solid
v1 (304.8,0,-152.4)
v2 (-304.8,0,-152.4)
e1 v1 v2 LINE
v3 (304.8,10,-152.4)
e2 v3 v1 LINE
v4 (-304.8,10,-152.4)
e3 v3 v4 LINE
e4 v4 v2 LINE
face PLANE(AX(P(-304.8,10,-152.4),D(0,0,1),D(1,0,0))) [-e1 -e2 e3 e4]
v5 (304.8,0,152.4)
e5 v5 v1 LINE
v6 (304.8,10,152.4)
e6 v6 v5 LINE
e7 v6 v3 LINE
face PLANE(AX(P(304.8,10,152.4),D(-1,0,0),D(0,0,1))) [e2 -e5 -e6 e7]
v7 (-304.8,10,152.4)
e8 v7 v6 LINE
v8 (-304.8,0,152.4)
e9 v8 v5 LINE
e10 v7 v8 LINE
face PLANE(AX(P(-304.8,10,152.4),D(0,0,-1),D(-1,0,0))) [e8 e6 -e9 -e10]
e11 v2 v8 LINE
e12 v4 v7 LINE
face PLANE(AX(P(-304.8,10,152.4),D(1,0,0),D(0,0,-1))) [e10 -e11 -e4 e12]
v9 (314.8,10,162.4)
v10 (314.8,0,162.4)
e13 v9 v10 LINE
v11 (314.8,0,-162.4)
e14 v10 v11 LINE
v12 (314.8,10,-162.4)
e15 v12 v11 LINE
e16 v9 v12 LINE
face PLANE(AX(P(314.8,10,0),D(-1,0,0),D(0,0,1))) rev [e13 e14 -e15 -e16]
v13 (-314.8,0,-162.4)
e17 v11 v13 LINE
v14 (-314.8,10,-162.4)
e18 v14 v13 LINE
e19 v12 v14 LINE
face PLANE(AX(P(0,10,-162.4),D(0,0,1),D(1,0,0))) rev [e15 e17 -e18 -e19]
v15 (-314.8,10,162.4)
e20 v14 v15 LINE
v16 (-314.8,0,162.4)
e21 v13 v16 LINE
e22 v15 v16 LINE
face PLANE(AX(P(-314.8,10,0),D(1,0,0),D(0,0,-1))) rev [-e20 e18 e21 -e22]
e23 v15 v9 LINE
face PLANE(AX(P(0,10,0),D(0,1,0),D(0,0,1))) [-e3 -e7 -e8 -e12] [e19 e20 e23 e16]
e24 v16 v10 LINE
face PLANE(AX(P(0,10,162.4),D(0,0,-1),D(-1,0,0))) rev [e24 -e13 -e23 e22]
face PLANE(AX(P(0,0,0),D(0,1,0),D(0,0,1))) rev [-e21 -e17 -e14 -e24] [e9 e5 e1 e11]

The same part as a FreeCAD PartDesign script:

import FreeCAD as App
import Part
import Sketcher
from FreeCAD import Vector

doc = App.newDocument("Part")
body = doc.addObject("PartDesign::Body", "Body")

# Sketch on XZ plane
sketch1 = doc.addObject("Sketcher::SketchObject", "Sketch")
body.addObject(sketch1)
sketch1.AttachmentSupport = (doc.XZ_Plane, [""])
sketch1.MapMode = "FlatFace"
sketch1.addGeometry([
    Part.LineSegment(Vector(-314.8, -162.4, 0), Vector(-314.8, 162.4, 0)),  # 0
    Part.LineSegment(Vector(-314.8, 162.4, 0), Vector(314.8, 162.4, 0)),  # 1
    Part.LineSegment(Vector(314.8, 162.4, 0), Vector(314.8, -162.4, 0)),  # 2
    Part.LineSegment(Vector(314.8, -162.4, 0), Vector(-314.8, -162.4, 0)),  # 3
    Part.LineSegment(Vector(304.8, 152.4, 0), Vector(-304.8, 152.4, 0)),  # 4
    Part.LineSegment(Vector(-304.8, 152.4, 0), Vector(-304.8, -152.4, 0)),  # 5
    Part.LineSegment(Vector(-304.8, -152.4, 0), Vector(304.8, -152.4, 0)),  # 6
    Part.LineSegment(Vector(304.8, -152.4, 0), Vector(304.8, 152.4, 0)),  # 7
], False)
sketch1.addConstraint([
    Sketcher.Constraint("Coincident", 0, 2, 1, 1),
    Sketcher.Constraint("Coincident", 1, 2, 2, 1),
    Sketcher.Constraint("Coincident", 2, 2, 3, 1),
    Sketcher.Constraint("Coincident", 3, 2, 0, 1),
    Sketcher.Constraint("Coincident", 4, 2, 5, 1),
    Sketcher.Constraint("Coincident", 5, 2, 6, 1),
    Sketcher.Constraint("Coincident", 6, 2, 7, 1),
    Sketcher.Constraint("Coincident", 7, 2, 4, 1),
    Sketcher.Constraint("Vertical", 0),
    Sketcher.Constraint("Horizontal", 1),
    Sketcher.Constraint("Vertical", 2),
    Sketcher.Constraint("Horizontal", 3),
    Sketcher.Constraint("Horizontal", 4),
    Sketcher.Constraint("Vertical", 5),
    Sketcher.Constraint("Horizontal", 6),
    Sketcher.Constraint("Vertical", 7),
    Sketcher.Constraint("Symmetric", 0, 2, 2, 2, -1, 1),
    Sketcher.Constraint("Symmetric", 4, 2, 6, 2, -1, 1),
    Sketcher.Constraint("DistanceX", 1, 1, 1, 2, 629.6),
    Sketcher.Constraint("DistanceX", 4, 2, 4, 1, 609.6),
    Sketcher.Constraint("DistanceY", 0, 1, 0, 2, 324.8),
    Sketcher.Constraint("DistanceY", 5, 2, 5, 1, 304.8),
])
pad1 = doc.addObject("PartDesign::Pad", "Pad")
body.addObject(pad1)
pad1.Profile = sketch1
pad1.Length = 10
pad1.Reversed = True

doc.recompute()
